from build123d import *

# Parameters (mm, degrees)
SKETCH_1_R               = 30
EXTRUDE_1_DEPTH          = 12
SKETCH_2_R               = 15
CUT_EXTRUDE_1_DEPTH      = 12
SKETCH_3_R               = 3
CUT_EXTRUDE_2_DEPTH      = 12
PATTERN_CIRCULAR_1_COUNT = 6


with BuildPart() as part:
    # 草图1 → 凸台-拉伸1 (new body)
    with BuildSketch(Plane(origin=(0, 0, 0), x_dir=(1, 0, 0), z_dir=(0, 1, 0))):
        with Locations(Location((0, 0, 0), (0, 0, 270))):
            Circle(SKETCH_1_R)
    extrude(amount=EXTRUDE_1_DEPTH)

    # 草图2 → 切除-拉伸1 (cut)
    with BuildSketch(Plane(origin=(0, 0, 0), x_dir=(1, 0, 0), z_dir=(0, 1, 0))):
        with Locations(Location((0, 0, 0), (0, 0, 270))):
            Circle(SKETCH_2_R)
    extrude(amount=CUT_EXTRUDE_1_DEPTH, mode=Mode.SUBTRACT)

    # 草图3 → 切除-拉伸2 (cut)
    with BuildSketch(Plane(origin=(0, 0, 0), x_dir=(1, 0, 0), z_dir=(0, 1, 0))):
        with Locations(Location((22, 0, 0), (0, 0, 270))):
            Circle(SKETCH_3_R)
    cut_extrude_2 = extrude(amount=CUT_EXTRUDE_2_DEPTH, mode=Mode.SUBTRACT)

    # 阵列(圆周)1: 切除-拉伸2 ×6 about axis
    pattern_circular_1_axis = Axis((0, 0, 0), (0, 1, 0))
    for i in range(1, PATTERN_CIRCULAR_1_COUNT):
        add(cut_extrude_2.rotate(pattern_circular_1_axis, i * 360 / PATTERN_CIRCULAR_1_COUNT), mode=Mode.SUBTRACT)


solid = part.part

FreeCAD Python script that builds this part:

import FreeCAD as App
import Part
import Sketcher
from FreeCAD import Vector
Q = App.Units.Quantity

doc = App.newDocument("Part")
body = doc.addObject("PartDesign::Body", "Body")

# Sketch on XZ plane
sketch1 = body.newObject("Sketcher::SketchObject", "Sketch")
sketch1.AttachmentSupport = (doc.getObject("XZ_Plane"), [""])
sketch1.MapMode = "FlatFace"
sketch1.addGeometry(Part.Circle(Vector(0, 0, 0), Vector(0, 0, 1), 30), False)
sketch1.addConstraint(Sketcher.Constraint("Coincident", 0, 3, -1, 1))
sketch1.addConstraint(Sketcher.Constraint("Diameter", 0, Q("60 mm")))
pad1 = body.newObject("PartDesign::Pad", "Pad")
pad1.Profile = sketch1
pad1.Length = 12
pad1.Reversed = True

# Sketch on XZ plane
sketch2 = body.newObject("Sketcher::SketchObject", "Sketch001")
sketch2.AttachmentSupport = (doc.getObject("XZ_Plane"), [""])
sketch2.MapMode = "FlatFace"
sketch2.addGeometry(Part.Circle(Vector(0, 0, 0), Vector(0, 0, 1), 15), False)
sketch2.addConstraint(Sketcher.Constraint("Coincident", 0, 3, -1, 1))
sketch2.addConstraint(Sketcher.Constraint("Diameter", 0, Q("30 mm")))
pocket1 = body.newObject("PartDesign::Pocket", "Pocket")
pocket1.Profile = sketch2
pocket1.Length = 12

# Sketch on XZ plane
sketch3 = body.newObject("Sketcher::SketchObject", "Sketch002")
sketch3.AttachmentSupport = (doc.getObject("XZ_Plane"), [""])
sketch3.MapMode = "FlatFace"
sketch3.addGeometry(Part.Circle(Vector(22, 0, 0), Vector(0, 0, 1), 3), False)
sketch3.addConstraint(Sketcher.Constraint("PointOnObject", 0, 3, -1))
sketch3.addConstraint(Sketcher.Constraint("Diameter", 0, Q("6 mm")))
sketch3.addConstraint(Sketcher.Constraint("DistanceX", -1, 1, 0, 3, Q("22 mm")))
pocket2 = body.newObject("PartDesign::Pocket", "Pocket001")
pocket2.Profile = sketch3
pocket2.Length = 12
doc.recompute()

polarpattern = body.newObject("PartDesign::PolarPattern", "PolarPattern")
polarpattern.Originals = [pocket2]
polarpattern.Axis = (doc.getObject("Y_Axis"), [""])
polarpattern.Angle = 360
polarpattern.Occurrences = 6
body.Tip = polarpattern

doc.recompute()
